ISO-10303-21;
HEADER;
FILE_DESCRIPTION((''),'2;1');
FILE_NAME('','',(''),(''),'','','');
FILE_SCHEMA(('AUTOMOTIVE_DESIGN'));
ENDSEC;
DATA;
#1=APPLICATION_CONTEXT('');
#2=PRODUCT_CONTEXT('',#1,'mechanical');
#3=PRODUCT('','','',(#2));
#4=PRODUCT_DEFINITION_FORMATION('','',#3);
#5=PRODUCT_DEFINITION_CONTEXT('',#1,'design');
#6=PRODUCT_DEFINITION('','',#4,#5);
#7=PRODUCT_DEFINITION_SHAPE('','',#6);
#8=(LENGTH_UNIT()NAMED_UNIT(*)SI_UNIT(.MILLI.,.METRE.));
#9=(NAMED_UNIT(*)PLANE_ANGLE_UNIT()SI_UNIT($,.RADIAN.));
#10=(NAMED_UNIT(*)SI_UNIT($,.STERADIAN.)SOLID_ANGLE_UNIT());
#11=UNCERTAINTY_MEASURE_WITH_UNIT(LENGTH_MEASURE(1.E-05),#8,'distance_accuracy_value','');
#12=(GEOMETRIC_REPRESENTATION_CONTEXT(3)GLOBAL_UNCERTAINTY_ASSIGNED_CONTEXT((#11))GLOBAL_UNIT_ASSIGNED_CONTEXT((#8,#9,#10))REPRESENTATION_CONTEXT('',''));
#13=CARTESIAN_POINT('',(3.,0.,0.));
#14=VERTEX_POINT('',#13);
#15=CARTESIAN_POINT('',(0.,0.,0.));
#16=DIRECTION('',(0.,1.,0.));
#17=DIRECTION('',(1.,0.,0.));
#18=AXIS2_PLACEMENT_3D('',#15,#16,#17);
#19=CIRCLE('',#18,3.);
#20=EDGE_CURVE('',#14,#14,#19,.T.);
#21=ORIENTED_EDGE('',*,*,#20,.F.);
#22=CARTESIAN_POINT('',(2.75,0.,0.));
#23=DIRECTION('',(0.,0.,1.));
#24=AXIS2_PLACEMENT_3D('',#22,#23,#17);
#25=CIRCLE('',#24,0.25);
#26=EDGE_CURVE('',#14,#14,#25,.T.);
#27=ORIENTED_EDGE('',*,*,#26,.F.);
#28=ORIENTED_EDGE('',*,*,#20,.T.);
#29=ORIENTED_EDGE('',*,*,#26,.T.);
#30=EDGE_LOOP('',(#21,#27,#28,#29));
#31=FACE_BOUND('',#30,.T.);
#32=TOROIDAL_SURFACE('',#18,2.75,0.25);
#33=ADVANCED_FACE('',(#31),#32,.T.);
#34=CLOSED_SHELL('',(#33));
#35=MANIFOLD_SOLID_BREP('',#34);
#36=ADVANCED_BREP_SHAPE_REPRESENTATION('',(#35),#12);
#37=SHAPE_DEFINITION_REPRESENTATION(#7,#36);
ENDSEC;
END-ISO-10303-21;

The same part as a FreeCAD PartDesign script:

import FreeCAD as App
import Part
import Sketcher

V = App.Vector
Q = App.Units.Quantity

doc = App.newDocument("Part")
body = doc.addObject("PartDesign::Body", "Body")

# Sketch on XY plane
sketch1 = body.newObject("Sketcher::SketchObject", "Sketch")
sketch1.AttachmentSupport = (doc.getObject("XY_Plane"), [""])
sketch1.MapMode = "FlatFace"
sketch1.addGeometry(Part.Circle(V(2.75, 0, 0), V(0, 0, 1), 0.25), False)
sketch1.addConstraint([
    Sketcher.Constraint("PointOnObject", 0, 3, -1),
    Sketcher.Constraint("Diameter", 0, Q("0.5 mm")),
    Sketcher.Constraint("DistanceX", -1, 1, 0, 3, Q("2.75 mm")),
])
revolution = body.newObject("PartDesign::Revolution", "Revolution")
revolution.Profile = sketch1
revolution.ReferenceAxis = (sketch1, ["V_Axis"])
revolution.Angle = 360

doc.recompute()
